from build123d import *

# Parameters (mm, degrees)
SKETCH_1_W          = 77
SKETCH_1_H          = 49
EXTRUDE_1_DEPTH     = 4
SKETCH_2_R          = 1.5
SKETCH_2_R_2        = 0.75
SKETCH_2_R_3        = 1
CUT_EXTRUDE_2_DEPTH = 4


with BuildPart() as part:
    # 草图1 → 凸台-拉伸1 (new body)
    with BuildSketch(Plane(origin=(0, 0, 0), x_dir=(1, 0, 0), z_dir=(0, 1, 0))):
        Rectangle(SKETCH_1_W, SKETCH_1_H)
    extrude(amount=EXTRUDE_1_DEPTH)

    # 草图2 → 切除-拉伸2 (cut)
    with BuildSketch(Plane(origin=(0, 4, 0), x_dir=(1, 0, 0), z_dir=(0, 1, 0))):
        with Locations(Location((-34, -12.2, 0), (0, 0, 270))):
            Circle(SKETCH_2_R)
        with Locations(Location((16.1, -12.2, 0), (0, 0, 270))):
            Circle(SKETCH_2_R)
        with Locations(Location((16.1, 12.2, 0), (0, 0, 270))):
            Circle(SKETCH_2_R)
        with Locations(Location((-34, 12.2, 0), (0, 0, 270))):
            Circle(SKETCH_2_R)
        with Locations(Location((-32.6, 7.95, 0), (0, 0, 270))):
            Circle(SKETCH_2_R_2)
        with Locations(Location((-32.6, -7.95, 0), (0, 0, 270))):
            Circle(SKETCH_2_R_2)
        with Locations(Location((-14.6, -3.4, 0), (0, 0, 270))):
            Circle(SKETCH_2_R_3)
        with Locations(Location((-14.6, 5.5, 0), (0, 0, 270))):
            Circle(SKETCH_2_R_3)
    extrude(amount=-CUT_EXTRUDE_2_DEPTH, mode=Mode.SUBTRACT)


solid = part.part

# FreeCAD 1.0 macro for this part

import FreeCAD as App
import Part
import Sketcher

doc = App.newDocument("Part")
params = doc.addObject("Spreadsheet::Sheet", "Params")
for row, (alias, value) in enumerate([
    ("sketch1_width", "77 mm"),
    ("sketch1_height", "49 mm"),
    ("pad1_length", "4 mm"),
    ("sketch2_diameter", "3 mm"),
    ("sketch2_diameter2", "2 mm"),
    ("sketch2_diameter3", "1.5 mm"),
    ("pocket1_length", "4 mm"),
], start=1):
    params.set(f"A{row}", alias)
    params.set(f"B{row}", "=" + value)
    params.setAlias(f"B{row}", alias)

body = doc.addObject("PartDesign::Body", "Body")

# Sketch on XZ plane
sketch1 = body.newObject("Sketcher::SketchObject", "Sketch")
sketch1.AttachmentSupport = (doc.getObject("XZ_Plane"), [""])
sketch1.MapMode = "FlatFace"
sketch1.addGeometry([
    Part.LineSegment(App.Vector(-38, -24, 0), App.Vector(-38, 24, 0)),
    Part.LineSegment(App.Vector(-38, 24, 0), App.Vector(38, 24, 0)),
    Part.LineSegment(App.Vector(38, 24, 0), App.Vector(38, -24, 0)),
    Part.LineSegment(App.Vector(38, -24, 0), App.Vector(-38, -24, 0)),
], False)
sketch1.addConstraint([
    Sketcher.Constraint("Coincident", 0, 2, 1, 1),
    Sketcher.Constraint("Coincident", 1, 2, 2, 1),
    Sketcher.Constraint("Coincident", 2, 2, 3, 1),
    Sketcher.Constraint("Coincident", 3, 2, 0, 1),
    Sketcher.Constraint("Vertical", 0),
    Sketcher.Constraint("Horizontal", 1),
    Sketcher.Constraint("Vertical", 2),
    Sketcher.Constraint("Horizontal", 3),
    Sketcher.Constraint("Symmetric", 0, 2, 2, 2, -1, 1),
    Sketcher.Constraint("DistanceX", 1, 1, 1, 2, 77.0),
    Sketcher.Constraint("DistanceY", 0, 1, 0, 2, 49.0),
])
sketch1.setExpression("Constraints[9]", "Params.sketch1_width")
sketch1.setExpression("Constraints[10]", "Params.sketch1_height")
pad1 = body.newObject("PartDesign::Pad", "Pad")
pad1.Profile = sketch1
pad1.setExpression("Length", "Params.pad1_length")
pad1.Reversed = True

# Sketch on XZ plane
sketch2 = body.newObject("Sketcher::SketchObject", "Sketch001")
sketch2.AttachmentSupport = (doc.getObject("XZ_Plane"), [""])
sketch2.MapMode = "FlatFace"
sketch2.AttachmentOffset = App.Placement(App.Vector(0, 0, -4), App.Rotation())
sketch2.addGeometry([
    Part.Circle(App.Vector(-34, 12.2, 0), App.Vector(0, 0, 1), 1.5),  # 0
    Part.Circle(App.Vector(16.1, 12.2, 0), App.Vector(0, 0, 1), 1.5),  # 1
    Part.Circle(App.Vector(16.1, -12.2, 0), App.Vector(0, 0, 1), 1.5),  # 2
    Part.Circle(App.Vector(-34, -12.2, 0), App.Vector(0, 0, 1), 1.5),  # 3
    Part.Circle(App.Vector(-32.6, -8, 0), App.Vector(0, 0, 1), 0.8),  # 4
    Part.Circle(App.Vector(-32.6, 8, 0), App.Vector(0, 0, 1), 0.8),  # 5
    Part.Circle(App.Vector(-14.6, 3.4, 0), App.Vector(0, 0, 1), 1),  # 6
    Part.Circle(App.Vector(-14.6, -5.5, 0), App.Vector(0, 0, 1), 1),  # 7
], False)
sketch2.addConstraint([
    Sketcher.Constraint("Equal", 0, 1),
    Sketcher.Constraint("Equal", 1, 2),
    Sketcher.Constraint("Equal", 2, 3),
    Sketcher.Constraint("Equal", 4, 5),
    Sketcher.Constraint("Equal", 6, 7),
    Sketcher.Constraint("Symmetric", 1, 3, 2, 3, -1),
    Sketcher.Constraint("Symmetric", 0, 3, 3, 3, -1),
    Sketcher.Constraint("Symmetric", 4, 3, 5, 3, -1),
    Sketcher.Constraint("Horizontal", 0, 3, 1, 3),
    Sketcher.Constraint("Vertical", 6, 3, 7, 3),
    Sketcher.Constraint("Diameter", 0, 3.0),
    Sketcher.Constraint("Diameter", 6, 2.0),
    Sketcher.Constraint("Diameter", 4, 1.5),
    Sketcher.Constraint("DistanceX", 0, 3, -1, 1, 34.0),
    Sketcher.Constraint("DistanceX", 5, 3, 6, 3, 18.0),
    Sketcher.Constraint("DistanceY", -1, 1, 0, 3, 12.2),
    Sketcher.Constraint("DistanceX", -1, 1, 1, 3, 16.1),
    Sketcher.Constraint("DistanceX", 4, 3, -1, 1, 32.6),
    Sketcher.Constraint("DistanceY", -1, 1, 6, 3, 3.4),
    Sketcher.Constraint("DistanceY", 7, 3, -1, 1, 5.5),
    Sketcher.Constraint("DistanceY", 4, 3, 5, 3, 15.9),
])
sketch2.setExpression("Constraints[10]", "Params.sketch2_diameter")
sketch2.setExpression("Constraints[11]", "Params.sketch2_diameter2")
sketch2.setExpression("Constraints[12]", "Params.sketch2_diameter3")
pocket1 = body.newObject("PartDesign::Pocket", "Pocket")
pocket1.Profile = sketch2
pocket1.setExpression("Length", "Params.pocket1_length")
pocket1.Reversed = True

doc.recompute()
